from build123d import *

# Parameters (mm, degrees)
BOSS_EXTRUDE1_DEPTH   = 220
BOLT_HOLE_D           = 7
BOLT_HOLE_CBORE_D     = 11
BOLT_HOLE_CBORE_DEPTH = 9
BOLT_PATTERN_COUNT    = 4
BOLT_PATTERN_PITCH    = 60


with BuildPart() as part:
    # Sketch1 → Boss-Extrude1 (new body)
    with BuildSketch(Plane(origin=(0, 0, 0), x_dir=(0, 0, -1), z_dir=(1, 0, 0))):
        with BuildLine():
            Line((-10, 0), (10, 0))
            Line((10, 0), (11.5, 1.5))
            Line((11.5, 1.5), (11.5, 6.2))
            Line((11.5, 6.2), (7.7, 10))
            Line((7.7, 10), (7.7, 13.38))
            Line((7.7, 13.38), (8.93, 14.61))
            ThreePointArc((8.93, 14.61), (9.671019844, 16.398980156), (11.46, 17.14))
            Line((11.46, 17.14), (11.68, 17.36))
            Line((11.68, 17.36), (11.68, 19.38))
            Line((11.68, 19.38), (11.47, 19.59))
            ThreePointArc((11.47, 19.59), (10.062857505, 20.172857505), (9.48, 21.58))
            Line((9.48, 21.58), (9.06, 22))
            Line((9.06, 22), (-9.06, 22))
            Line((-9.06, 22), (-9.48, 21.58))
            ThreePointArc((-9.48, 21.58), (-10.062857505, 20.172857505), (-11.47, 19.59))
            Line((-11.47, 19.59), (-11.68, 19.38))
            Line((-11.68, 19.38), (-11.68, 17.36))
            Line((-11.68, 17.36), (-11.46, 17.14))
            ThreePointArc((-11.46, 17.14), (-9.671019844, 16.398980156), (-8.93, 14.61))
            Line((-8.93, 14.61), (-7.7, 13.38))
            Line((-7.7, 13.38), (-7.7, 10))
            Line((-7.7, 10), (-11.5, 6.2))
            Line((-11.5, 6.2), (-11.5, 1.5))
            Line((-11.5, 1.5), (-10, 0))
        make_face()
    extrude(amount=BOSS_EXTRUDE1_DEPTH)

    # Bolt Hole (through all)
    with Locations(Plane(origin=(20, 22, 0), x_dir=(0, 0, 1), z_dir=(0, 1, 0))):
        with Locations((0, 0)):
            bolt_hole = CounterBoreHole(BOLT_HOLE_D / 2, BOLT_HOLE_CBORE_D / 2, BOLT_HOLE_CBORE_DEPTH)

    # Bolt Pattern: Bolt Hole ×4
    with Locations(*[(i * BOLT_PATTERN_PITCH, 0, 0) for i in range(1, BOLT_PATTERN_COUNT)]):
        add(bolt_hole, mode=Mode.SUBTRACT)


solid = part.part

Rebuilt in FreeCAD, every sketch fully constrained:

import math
import FreeCAD as App
import Part
import Sketcher
from FreeCAD import Vector

doc = App.newDocument("Part")
body = doc.addObject("PartDesign::Body", "Body")

# Sketch on YZ plane
sketch1 = doc.addObject("Sketcher::SketchObject", "Sketch")
body.addObject(sketch1)
sketch1.AttachmentSupport = (doc.YZ_Plane, [""])
sketch1.MapMode = "FlatFace"
sketch1.addGeometry(Part.LineSegment(Vector(0, 10, 0), Vector(0, -10, 0)), False)
sketch1.addGeometry(Part.LineSegment(Vector(0, -10, 0), Vector(1.5, -11.5, 0)), False)
sketch1.addGeometry(Part.LineSegment(Vector(1.5, -11.5, 0), Vector(6.2, -11.5, 0)), False)
sketch1.addGeometry(Part.LineSegment(Vector(6.2, -11.5, 0), Vector(10, -7.7, 0)), False)
sketch1.addGeometry(Part.LineSegment(Vector(10, -7.7, 0), Vector(13.38, -7.7, 0)), False)
sketch1.addGeometry(Part.LineSegment(Vector(13.38, -7.7, 0), Vector(14.61, -8.93, 0)), False)
sketch1.addGeometry(Part.ArcOfCircle(Part.Circle(Vector(14.61, -11.46, 0), Vector(0, 0, 1), 2.53), math.radians(0), math.radians(90)), False)
sketch1.addGeometry(Part.LineSegment(Vector(17.14, -11.46, 0), Vector(17.36, -11.68, 0)), False)
sketch1.addGeometry(Part.LineSegment(Vector(17.36, -11.68, 0), Vector(19.38, -11.68, 0)), False)
sketch1.addGeometry(Part.LineSegment(Vector(19.38, -11.68, 0), Vector(19.59, -11.47, 0)), False)
sketch1.addGeometry(Part.ArcOfCircle(Part.Circle(Vector(21.58, -11.47, 0), Vector(0, 0, 1), 1.99), math.radians(90), math.radians(180)), False)
sketch1.addGeometry(Part.LineSegment(Vector(21.58, -9.48, 0), Vector(22, -9.06, 0)), False)
sketch1.addGeometry(Part.LineSegment(Vector(22, -9.06, 0), Vector(22, 9.06, 0)), False)
sketch1.addGeometry(Part.LineSegment(Vector(22, 9.06, 0), Vector(21.58, 9.48, 0)), False)
sketch1.addGeometry(Part.ArcOfCircle(Part.Circle(Vector(21.58, 11.47, 0), Vector(0, 0, 1), 1.99), math.radians(180), math.radians(270)), False)
sketch1.addGeometry(Part.LineSegment(Vector(19.59, 11.47, 0), Vector(19.38, 11.68, 0)), False)
sketch1.addGeometry(Part.LineSegment(Vector(19.38, 11.68, 0), Vector(17.36, 11.68, 0)), False)
sketch1.addGeometry(Part.LineSegment(Vector(17.36, 11.68, 0), Vector(17.14, 11.46, 0)), False)
sketch1.addGeometry(Part.ArcOfCircle(Part.Circle(Vector(14.61, 11.46, 0), Vector(0, 0, 1), 2.53), math.radians(-90), math.radians(0)), False)
sketch1.addGeometry(Part.LineSegment(Vector(14.61, 8.93, 0), Vector(13.38, 7.7, 0)), False)
sketch1.addGeometry(Part.LineSegment(Vector(13.38, 7.7, 0), Vector(10, 7.7, 0)), False)
sketch1.addGeometry(Part.LineSegment(Vector(10, 7.7, 0), Vector(6.2, 11.5, 0)), False)
sketch1.addGeometry(Part.LineSegment(Vector(6.2, 11.5, 0), Vector(1.5, 11.5, 0)), False)
sketch1.addGeometry(Part.LineSegment(Vector(1.5, 11.5, 0), Vector(0, 10, 0)), False)
sketch1.addConstraint(Sketcher.Constraint("Coincident", 0, 2, 1, 1))
sketch1.addConstraint(Sketcher.Constraint("Coincident", 1, 2, 2, 1))
sketch1.addConstraint(Sketcher.Constraint("Coincident", 2, 2, 3, 1))
sketch1.addConstraint(Sketcher.Constraint("Coincident", 3, 2, 4, 1))
sketch1.addConstraint(Sketcher.Constraint("Coincident", 4, 2, 5, 1))
sketch1.addConstraint(Sketcher.Constraint("Coincident", 5, 2, 6, 2))
sketch1.addConstraint(Sketcher.Constraint("Coincident", 6, 1, 7, 1))
sketch1.addConstraint(Sketcher.Constraint("Coincident", 7, 2, 8, 1))
sketch1.addConstraint(Sketcher.Constraint("Coincident", 8, 2, 9, 1))
sketch1.addConstraint(Sketcher.Constraint("Coincident", 9, 2, 10, 2))
sketch1.addConstraint(Sketcher.Constraint("Coincident", 10, 1, 11, 1))
sketch1.addConstraint(Sketcher.Constraint("Coincident", 11, 2, 12, 1))
sketch1.addConstraint(Sketcher.Constraint("Coincident", 12, 2, 13, 1))
sketch1.addConstraint(Sketcher.Constraint("Coincident", 13, 2, 14, 2))
sketch1.addConstraint(Sketcher.Constraint("Coincident", 14, 1, 15, 1))
sketch1.addConstraint(Sketcher.Constraint("Coincident", 15, 2, 16, 1))
sketch1.addConstraint(Sketcher.Constraint("Coincident", 16, 2, 17, 1))
sketch1.addConstraint(Sketcher.Constraint("Coincident", 17, 2, 18, 2))
sketch1.addConstraint(Sketcher.Constraint("Coincident", 18, 1, 19, 1))
sketch1.addConstraint(Sketcher.Constraint("Coincident", 19, 2, 20, 1))
sketch1.addConstraint(Sketcher.Constraint("Coincident", 20, 2, 21, 1))
sketch1.addConstraint(Sketcher.Constraint("Coincident", 21, 2, 22, 1))
sketch1.addConstraint(Sketcher.Constraint("Coincident", 22, 2, 23, 1))
sketch1.addConstraint(Sketcher.Constraint("Coincident", 23, 2, 0, 1))
sketch1.addConstraint(Sketcher.Constraint("Vertical", 0))
sketch1.addConstraint(Sketcher.Constraint("Horizontal", 2))
sketch1.addConstraint(Sketcher.Constraint("Horizontal", 4))
sketch1.addConstraint(Sketcher.Constraint("Horizontal", 8))
sketch1.addConstraint(Sketcher.Constraint("Vertical", 12))
sketch1.addConstraint(Sketcher.Constraint("Horizontal", 16))
sketch1.addConstraint(Sketcher.Constraint("Horizontal", 20))
sketch1.addConstraint(Sketcher.Constraint("Horizontal", 22))
sketch1.addConstraint(Sketcher.Constraint("Equal", 10, 14))
sketch1.addConstraint(Sketcher.Constraint("Equal", 6, 18))
sketch1.addConstraint(Sketcher.Constraint("Symmetric", 0, 2, 23, 2, -1, 1))
sketch1.addConstraint(Sketcher.Constraint("Symmetric", 10, 3, 14, 3, -1))
sketch1.addConstraint(Sketcher.Constraint("Symmetric", 6, 3, 18, 3, -1))
sketch1.addConstraint(Sketcher.Constraint("Symmetric", 8, 2, 15, 2, -1))
sketch1.addConstraint(Sketcher.Constraint("Symmetric", 4, 2, 19, 2, -1))
sketch1.addConstraint(Sketcher.Constraint("Symmetric", 2, 2, 21, 2, -1))
sketch1.addConstraint(Sketcher.Constraint("Perpendicular", 1, 3))
sketch1.addConstraint(Sketcher.Constraint("Perpendicular", 3, 5))
sketch1.addConstraint(Sketcher.Constraint("Parallel", 5, 7))
sketch1.addConstraint(Sketcher.Constraint("Perpendicular", 7, 9))
sketch1.addConstraint(Sketcher.Constraint("Parallel", 9, 11))
sketch1.addConstraint(Sketcher.Constraint("Perpendicular", 11, 13))
sketch1.addConstraint(Sketcher.Constraint("Parallel", 13, 15))
sketch1.addConstraint(Sketcher.Constraint("Perpendicular", 15, 17))
sketch1.addConstraint(Sketcher.Constraint("Parallel", 17, 19))
sketch1.addConstraint(Sketcher.Constraint("Perpendicular", 19, 21))
sketch1.addConstraint(Sketcher.Constraint("Perpendicular", 21, 23))
sketch1.addConstraint(Sketcher.Constraint("Horizontal", 10, 3, 9, 2))
sketch1.addConstraint(Sketcher.Constraint("Horizontal", 18, 3, 17, 2))
sketch1.addConstraint(Sketcher.Constraint("Vertical", 18, 3, 5, 2))
sketch1.addConstraint(Sketcher.Constraint("Vertical", 14, 3, 10, 1))
sketch1.addConstraint(Sketcher.Constraint("Vertical", 10, 1, 13, 2))
sketch1.addConstraint(Sketcher.Constraint("Vertical", 7, 2, 16, 2))
sketch1.addConstraint(Sketcher.Constraint("Vertical", 5, 2, 18, 1))
sketch1.addConstraint(Sketcher.Constraint("DistanceY", 0, 2, 0, 1, 20.0))
sketch1.addConstraint(Sketcher.Constraint("Radius", 6, 2.53))
sketch1.addConstraint(Sketcher.Constraint("Radius", 10, 1.99))
sketch1.addConstraint(Sketcher.Constraint("DistanceX", 2, 1, 2, 2, 4.7))
sketch1.addConstraint(Sketcher.Constraint("DistanceX", -1, 1, 3, 2, 10.0))
sketch1.addConstraint(Sketcher.Constraint("DistanceX", -1, 1, 11, 2, 22.0))
sketch1.addConstraint(Sketcher.Constraint("DistanceX", 19, 2, 15, 2, 6.0))
sketch1.addConstraint(Sketcher.Constraint("DistanceX", 4, 1, 4, 2, 3.38))
sketch1.addConstraint(Sketcher.Constraint("DistanceX", 8, 1, 8, 2, 2.02))
sketch1.addConstraint(Sketcher.Constraint("DistanceY", 12, 1, 12, 2, 18.12))
sketch1.addConstraint(Sketcher.Constraint("DistanceX", 4, 2, 10, 3, 8.2))
sketch1.addConstraint(Sketcher.Constraint("DistanceY", 12, 2, 18, 3, 2.4))
pad1 = doc.addObject("PartDesign::Pad", "Pad")
body.addObject(pad1)
pad1.Profile = sketch1
pad1.Length = 220

# Sketch on XZ plane
sketch2 = doc.addObject("Sketcher::SketchObject", "Sketch001")
body.addObject(sketch2)
sketch2.AttachmentSupport = (doc.XZ_Plane, [""])
sketch2.MapMode = "FlatFace"
sketch2.AttachmentOffset = App.Placement(Vector(0, 0, -22), App.Rotation())
sketch2.addGeometry(Part.Circle(Vector(20, 0, 0), Vector(0, 0, 1), 3.5), False)
sketch2.addConstraint(Sketcher.Constraint("PointOnObject", 0, 3, -1))
sketch2.addConstraint(Sketcher.Constraint("Diameter", 0, 7.0))
sketch2.addConstraint(Sketcher.Constraint("DistanceX", -1, 1, 0, 3, 20.0))
doc.recompute()
hole = doc.addObject("PartDesign::Hole", "Hole")
body.addObject(hole)
hole.Profile = sketch2
hole.ThreadType = "None"
hole.Diameter = 7
hole.DepthType = "ThroughAll"
hole.HoleCutType = "Counterbore"
hole.HoleCutDiameter = 11
hole.HoleCutDepth = 9
hole.Reversed = True
doc.recompute()

linearpattern = doc.addObject("PartDesign::LinearPattern", "LinearPattern")
body.addObject(linearpattern)
linearpattern.Originals = [hole]
linearpattern.Direction = (doc.X_Axis, [""])
linearpattern.Mode = "offset"
linearpattern.Offset = 60
linearpattern.Occurrences = 4
body.Tip = linearpattern

doc.recompute()
